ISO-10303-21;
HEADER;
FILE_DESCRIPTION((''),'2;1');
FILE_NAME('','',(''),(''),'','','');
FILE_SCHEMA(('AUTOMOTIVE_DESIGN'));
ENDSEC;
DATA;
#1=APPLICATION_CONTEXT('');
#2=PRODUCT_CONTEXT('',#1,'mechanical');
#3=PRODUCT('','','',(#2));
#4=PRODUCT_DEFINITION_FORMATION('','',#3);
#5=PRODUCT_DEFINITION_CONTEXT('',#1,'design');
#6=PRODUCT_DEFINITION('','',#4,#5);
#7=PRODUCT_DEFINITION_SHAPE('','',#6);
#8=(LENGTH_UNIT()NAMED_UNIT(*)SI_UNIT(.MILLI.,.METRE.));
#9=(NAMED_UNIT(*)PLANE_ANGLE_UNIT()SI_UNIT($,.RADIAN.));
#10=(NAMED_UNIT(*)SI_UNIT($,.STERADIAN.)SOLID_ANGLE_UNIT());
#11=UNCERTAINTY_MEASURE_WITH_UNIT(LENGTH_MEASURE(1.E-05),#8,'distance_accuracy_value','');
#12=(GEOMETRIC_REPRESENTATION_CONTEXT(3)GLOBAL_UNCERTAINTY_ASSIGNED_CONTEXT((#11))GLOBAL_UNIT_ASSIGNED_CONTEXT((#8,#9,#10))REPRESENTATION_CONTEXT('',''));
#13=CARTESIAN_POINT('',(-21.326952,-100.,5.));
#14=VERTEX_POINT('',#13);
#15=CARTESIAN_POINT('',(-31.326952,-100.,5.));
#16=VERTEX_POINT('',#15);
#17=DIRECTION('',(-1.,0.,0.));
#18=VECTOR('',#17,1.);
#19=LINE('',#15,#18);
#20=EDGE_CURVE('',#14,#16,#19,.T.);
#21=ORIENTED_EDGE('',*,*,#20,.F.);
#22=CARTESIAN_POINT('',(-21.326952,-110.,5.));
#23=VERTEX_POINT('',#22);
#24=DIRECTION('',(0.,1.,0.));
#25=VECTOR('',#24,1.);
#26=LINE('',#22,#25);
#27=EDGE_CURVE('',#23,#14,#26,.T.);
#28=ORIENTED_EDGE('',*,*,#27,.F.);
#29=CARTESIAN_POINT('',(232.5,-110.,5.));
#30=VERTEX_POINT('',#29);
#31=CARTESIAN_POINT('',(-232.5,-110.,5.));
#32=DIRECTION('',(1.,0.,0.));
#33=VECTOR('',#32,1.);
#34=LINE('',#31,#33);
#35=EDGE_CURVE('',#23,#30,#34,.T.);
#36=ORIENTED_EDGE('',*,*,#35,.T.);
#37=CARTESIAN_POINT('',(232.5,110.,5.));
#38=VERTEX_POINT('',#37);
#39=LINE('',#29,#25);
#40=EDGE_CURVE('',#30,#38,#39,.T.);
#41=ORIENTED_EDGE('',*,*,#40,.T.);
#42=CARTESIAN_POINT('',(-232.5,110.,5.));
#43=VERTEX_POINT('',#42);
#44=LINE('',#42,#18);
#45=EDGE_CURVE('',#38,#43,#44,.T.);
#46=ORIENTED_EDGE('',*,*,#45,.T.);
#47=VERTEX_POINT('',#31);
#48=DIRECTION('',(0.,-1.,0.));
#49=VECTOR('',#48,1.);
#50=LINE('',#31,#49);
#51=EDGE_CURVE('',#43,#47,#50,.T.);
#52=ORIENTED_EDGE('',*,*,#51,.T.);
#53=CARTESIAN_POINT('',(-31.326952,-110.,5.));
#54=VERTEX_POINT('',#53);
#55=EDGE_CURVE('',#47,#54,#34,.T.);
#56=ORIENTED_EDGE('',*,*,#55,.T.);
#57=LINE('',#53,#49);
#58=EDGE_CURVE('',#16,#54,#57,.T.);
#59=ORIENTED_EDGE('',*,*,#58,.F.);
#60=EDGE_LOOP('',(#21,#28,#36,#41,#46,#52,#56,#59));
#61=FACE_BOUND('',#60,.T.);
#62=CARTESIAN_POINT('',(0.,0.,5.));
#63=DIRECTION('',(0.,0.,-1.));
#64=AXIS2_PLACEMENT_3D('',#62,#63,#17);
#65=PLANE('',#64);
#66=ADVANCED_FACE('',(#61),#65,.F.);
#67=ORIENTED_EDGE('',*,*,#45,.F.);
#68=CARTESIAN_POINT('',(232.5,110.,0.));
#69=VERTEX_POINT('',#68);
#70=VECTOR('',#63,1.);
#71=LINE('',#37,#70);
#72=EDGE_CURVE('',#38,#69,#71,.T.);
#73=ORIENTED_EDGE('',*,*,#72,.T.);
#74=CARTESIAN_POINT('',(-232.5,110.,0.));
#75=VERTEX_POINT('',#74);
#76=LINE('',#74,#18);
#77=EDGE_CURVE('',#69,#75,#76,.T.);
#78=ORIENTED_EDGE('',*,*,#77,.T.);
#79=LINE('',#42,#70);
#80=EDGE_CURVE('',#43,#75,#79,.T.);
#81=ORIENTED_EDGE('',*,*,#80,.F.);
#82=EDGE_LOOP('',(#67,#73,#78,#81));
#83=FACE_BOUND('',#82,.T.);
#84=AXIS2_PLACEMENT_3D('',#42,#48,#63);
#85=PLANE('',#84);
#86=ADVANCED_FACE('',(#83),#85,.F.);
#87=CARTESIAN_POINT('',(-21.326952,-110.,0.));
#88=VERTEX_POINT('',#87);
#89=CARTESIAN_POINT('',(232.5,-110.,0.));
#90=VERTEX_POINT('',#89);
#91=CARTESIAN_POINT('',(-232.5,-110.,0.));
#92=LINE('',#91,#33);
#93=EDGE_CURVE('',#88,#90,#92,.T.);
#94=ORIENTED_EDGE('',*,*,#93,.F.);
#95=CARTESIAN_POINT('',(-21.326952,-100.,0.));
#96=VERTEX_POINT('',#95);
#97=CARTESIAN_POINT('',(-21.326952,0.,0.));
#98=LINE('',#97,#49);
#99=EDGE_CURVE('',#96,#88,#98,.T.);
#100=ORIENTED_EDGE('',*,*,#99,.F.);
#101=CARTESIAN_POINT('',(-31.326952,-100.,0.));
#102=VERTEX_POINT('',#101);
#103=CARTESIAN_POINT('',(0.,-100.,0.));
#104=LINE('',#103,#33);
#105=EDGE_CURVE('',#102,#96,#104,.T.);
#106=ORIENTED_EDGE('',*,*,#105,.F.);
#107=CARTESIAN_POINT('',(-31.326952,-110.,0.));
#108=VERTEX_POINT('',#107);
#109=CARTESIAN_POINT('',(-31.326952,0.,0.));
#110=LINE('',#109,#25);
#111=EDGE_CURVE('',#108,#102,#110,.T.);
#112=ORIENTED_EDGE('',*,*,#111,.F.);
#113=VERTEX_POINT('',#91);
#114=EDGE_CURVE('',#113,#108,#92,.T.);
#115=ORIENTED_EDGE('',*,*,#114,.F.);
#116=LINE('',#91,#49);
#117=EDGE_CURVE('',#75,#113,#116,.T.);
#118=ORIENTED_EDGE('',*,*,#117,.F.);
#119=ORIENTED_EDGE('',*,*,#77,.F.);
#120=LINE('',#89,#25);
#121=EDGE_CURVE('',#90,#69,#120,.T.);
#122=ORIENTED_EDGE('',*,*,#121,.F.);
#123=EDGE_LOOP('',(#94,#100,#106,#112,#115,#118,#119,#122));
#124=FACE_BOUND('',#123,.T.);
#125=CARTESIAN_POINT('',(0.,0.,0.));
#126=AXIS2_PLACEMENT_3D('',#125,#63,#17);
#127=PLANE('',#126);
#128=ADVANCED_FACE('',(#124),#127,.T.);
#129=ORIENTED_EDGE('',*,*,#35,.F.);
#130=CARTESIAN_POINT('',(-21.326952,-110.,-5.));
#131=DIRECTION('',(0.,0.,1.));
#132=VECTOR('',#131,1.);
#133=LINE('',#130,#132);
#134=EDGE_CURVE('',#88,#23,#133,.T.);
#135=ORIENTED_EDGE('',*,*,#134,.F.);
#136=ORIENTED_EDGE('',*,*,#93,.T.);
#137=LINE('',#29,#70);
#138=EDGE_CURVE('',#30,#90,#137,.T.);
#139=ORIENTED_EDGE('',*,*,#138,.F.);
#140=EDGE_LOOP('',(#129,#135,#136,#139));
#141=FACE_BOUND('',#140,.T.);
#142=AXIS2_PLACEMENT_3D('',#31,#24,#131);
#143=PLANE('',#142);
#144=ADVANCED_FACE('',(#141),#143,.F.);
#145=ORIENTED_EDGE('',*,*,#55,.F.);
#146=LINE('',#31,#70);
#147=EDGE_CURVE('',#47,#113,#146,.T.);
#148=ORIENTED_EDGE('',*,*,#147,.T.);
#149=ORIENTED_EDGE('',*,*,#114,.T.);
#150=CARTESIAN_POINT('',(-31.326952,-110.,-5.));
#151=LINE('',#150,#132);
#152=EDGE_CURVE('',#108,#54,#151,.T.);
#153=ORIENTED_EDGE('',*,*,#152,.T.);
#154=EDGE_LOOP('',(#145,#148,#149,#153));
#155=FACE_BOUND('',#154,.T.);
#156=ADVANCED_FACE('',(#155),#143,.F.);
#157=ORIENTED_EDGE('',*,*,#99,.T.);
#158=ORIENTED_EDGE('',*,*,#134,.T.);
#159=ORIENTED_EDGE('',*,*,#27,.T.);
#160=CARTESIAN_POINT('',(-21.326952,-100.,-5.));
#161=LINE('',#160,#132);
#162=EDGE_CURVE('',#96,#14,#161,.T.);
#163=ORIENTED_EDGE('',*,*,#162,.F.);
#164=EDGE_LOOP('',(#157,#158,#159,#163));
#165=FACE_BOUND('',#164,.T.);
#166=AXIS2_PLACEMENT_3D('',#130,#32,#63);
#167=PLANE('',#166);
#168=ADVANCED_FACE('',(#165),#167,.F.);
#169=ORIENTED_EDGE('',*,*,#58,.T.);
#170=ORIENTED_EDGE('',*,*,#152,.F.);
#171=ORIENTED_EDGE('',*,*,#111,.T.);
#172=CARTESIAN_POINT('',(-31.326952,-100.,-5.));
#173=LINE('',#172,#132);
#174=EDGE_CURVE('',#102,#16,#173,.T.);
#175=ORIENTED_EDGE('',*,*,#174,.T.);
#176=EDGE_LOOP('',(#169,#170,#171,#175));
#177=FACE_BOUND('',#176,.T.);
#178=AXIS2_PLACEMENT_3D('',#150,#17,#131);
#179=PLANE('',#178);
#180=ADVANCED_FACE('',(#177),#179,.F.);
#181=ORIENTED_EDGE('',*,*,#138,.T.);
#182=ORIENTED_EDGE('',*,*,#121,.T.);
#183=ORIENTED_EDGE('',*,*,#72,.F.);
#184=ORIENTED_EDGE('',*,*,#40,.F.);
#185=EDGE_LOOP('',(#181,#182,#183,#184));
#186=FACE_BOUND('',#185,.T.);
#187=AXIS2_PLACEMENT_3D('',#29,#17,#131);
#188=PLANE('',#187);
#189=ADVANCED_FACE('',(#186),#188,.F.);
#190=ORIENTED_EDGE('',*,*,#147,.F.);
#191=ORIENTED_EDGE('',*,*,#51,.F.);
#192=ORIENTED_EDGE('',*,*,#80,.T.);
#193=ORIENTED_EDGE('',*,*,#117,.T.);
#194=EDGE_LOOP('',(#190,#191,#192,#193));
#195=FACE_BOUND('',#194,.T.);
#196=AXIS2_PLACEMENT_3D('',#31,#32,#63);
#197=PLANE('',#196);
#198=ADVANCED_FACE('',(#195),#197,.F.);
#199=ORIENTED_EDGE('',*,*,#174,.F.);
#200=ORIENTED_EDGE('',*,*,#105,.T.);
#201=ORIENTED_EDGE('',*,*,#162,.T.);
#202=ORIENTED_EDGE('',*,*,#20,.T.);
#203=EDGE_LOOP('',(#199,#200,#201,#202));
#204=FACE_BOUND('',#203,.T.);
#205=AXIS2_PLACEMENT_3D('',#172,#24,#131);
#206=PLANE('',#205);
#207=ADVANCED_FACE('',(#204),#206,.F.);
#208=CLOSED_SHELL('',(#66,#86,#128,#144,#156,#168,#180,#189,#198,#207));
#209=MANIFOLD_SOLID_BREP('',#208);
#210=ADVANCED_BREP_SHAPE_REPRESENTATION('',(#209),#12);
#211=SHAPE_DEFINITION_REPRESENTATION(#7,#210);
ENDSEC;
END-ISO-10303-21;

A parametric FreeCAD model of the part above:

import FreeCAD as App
import Part
import Sketcher
from FreeCAD import Vector

doc = App.newDocument("Part")
body = doc.addObject("PartDesign::Body", "Body")

# Sketch on XY plane
sketch1 = body.newObject("Sketcher::SketchObject", "Sketch")
sketch1.AttachmentSupport = (doc.getObject("XY_Plane"), [""])
sketch1.MapMode = "FlatFace"
sketch1.addGeometry(Part.LineSegment(Vector(-232.5, 110, 0), Vector(-232.5, -110, 0)), False)
sketch1.addGeometry(Part.LineSegment(Vector(-232.5, -110, 0), Vector(232.5, -110, 0)), False)
sketch1.addGeometry(Part.LineSegment(Vector(232.5, -110, 0), Vector(232.5, 110, 0)), False)
sketch1.addGeometry(Part.LineSegment(Vector(232.5, 110, 0), Vector(-232.5, 110, 0)), False)
sketch1.addConstraint(Sketcher.Constraint("Coincident", 0, 2, 1, 1))
sketch1.addConstraint(Sketcher.Constraint("Coincident", 1, 2, 2, 1))
sketch1.addConstraint(Sketcher.Constraint("Coincident", 2, 2, 3, 1))
sketch1.addConstraint(Sketcher.Constraint("Coincident", 3, 2, 0, 1))
sketch1.addConstraint(Sketcher.Constraint("Vertical", 0))
sketch1.addConstraint(Sketcher.Constraint("Horizontal", 1))
sketch1.addConstraint(Sketcher.Constraint("Vertical", 2))
sketch1.addConstraint(Sketcher.Constraint("Horizontal", 3))
sketch1.addConstraint(Sketcher.Constraint("Symmetric", 0, 2, 2, 2, -1, 1))
sketch1.addConstraint(Sketcher.Constraint("DistanceX", 1, 1, 1, 2, 465.0))
sketch1.addConstraint(Sketcher.Constraint("DistanceY", 0, 2, 0, 1, 220.0))
pad1 = body.newObject("PartDesign::Pad", "Pad")
pad1.Profile = sketch1
pad1.Length = 5

# Sketch on XY plane
sketch2 = body.newObject("Sketcher::SketchObject", "Sketch001")
sketch2.AttachmentSupport = (doc.getObject("XY_Plane"), [""])
sketch2.MapMode = "FlatFace"
sketch2.AttachmentOffset = App.Placement(Vector(0, 0, 5), App.Rotation())
sketch2.addGeometry(Part.LineSegment(Vector(-31.326952, -100, 0), Vector(-31.326952, -110, 0)), False)
sketch2.addGeometry(Part.LineSegment(Vector(-31.326952, -110, 0), Vector(-21.326952, -110, 0)), False)
sketch2.addGeometry(Part.LineSegment(Vector(-21.326952, -110, 0), Vector(-21.326952, -100, 0)), False)
sketch2.addGeometry(Part.LineSegment(Vector(-21.326952, -100, 0), Vector(-31.326952, -100, 0)), False)
sketch2.addConstraint(Sketcher.Constraint("Coincident", 0, 2, 1, 1))
sketch2.addConstraint(Sketcher.Constraint("Coincident", 1, 2, 2, 1))
sketch2.addConstraint(Sketcher.Constraint("Coincident", 2, 2, 3, 1))
sketch2.addConstraint(Sketcher.Constraint("Coincident", 3, 2, 0, 1))
sketch2.addConstraint(Sketcher.Constraint("Vertical", 0))
sketch2.addConstraint(Sketcher.Constraint("Horizontal", 1))
sketch2.addConstraint(Sketcher.Constraint("Vertical", 2))
sketch2.addConstraint(Sketcher.Constraint("Horizontal", 3))
sketch2.addConstraint(Sketcher.Constraint("Equal", 3, 0))
sketch2.addConstraint(Sketcher.Constraint("DistanceX", 1, 1, 1, 2, 10.0))
sketch2.addConstraint(Sketcher.Constraint("DistanceY", 0, 2, -1, 1, 110.0))
sketch2.addConstraint(Sketcher.Constraint("DistanceX", 0, 2, -1, 1, 31.326952))
pocket1 = body.newObject("PartDesign::Pocket", "Pocket")
pocket1.Profile = sketch2
pocket1.Length = 10

doc.recompute()
